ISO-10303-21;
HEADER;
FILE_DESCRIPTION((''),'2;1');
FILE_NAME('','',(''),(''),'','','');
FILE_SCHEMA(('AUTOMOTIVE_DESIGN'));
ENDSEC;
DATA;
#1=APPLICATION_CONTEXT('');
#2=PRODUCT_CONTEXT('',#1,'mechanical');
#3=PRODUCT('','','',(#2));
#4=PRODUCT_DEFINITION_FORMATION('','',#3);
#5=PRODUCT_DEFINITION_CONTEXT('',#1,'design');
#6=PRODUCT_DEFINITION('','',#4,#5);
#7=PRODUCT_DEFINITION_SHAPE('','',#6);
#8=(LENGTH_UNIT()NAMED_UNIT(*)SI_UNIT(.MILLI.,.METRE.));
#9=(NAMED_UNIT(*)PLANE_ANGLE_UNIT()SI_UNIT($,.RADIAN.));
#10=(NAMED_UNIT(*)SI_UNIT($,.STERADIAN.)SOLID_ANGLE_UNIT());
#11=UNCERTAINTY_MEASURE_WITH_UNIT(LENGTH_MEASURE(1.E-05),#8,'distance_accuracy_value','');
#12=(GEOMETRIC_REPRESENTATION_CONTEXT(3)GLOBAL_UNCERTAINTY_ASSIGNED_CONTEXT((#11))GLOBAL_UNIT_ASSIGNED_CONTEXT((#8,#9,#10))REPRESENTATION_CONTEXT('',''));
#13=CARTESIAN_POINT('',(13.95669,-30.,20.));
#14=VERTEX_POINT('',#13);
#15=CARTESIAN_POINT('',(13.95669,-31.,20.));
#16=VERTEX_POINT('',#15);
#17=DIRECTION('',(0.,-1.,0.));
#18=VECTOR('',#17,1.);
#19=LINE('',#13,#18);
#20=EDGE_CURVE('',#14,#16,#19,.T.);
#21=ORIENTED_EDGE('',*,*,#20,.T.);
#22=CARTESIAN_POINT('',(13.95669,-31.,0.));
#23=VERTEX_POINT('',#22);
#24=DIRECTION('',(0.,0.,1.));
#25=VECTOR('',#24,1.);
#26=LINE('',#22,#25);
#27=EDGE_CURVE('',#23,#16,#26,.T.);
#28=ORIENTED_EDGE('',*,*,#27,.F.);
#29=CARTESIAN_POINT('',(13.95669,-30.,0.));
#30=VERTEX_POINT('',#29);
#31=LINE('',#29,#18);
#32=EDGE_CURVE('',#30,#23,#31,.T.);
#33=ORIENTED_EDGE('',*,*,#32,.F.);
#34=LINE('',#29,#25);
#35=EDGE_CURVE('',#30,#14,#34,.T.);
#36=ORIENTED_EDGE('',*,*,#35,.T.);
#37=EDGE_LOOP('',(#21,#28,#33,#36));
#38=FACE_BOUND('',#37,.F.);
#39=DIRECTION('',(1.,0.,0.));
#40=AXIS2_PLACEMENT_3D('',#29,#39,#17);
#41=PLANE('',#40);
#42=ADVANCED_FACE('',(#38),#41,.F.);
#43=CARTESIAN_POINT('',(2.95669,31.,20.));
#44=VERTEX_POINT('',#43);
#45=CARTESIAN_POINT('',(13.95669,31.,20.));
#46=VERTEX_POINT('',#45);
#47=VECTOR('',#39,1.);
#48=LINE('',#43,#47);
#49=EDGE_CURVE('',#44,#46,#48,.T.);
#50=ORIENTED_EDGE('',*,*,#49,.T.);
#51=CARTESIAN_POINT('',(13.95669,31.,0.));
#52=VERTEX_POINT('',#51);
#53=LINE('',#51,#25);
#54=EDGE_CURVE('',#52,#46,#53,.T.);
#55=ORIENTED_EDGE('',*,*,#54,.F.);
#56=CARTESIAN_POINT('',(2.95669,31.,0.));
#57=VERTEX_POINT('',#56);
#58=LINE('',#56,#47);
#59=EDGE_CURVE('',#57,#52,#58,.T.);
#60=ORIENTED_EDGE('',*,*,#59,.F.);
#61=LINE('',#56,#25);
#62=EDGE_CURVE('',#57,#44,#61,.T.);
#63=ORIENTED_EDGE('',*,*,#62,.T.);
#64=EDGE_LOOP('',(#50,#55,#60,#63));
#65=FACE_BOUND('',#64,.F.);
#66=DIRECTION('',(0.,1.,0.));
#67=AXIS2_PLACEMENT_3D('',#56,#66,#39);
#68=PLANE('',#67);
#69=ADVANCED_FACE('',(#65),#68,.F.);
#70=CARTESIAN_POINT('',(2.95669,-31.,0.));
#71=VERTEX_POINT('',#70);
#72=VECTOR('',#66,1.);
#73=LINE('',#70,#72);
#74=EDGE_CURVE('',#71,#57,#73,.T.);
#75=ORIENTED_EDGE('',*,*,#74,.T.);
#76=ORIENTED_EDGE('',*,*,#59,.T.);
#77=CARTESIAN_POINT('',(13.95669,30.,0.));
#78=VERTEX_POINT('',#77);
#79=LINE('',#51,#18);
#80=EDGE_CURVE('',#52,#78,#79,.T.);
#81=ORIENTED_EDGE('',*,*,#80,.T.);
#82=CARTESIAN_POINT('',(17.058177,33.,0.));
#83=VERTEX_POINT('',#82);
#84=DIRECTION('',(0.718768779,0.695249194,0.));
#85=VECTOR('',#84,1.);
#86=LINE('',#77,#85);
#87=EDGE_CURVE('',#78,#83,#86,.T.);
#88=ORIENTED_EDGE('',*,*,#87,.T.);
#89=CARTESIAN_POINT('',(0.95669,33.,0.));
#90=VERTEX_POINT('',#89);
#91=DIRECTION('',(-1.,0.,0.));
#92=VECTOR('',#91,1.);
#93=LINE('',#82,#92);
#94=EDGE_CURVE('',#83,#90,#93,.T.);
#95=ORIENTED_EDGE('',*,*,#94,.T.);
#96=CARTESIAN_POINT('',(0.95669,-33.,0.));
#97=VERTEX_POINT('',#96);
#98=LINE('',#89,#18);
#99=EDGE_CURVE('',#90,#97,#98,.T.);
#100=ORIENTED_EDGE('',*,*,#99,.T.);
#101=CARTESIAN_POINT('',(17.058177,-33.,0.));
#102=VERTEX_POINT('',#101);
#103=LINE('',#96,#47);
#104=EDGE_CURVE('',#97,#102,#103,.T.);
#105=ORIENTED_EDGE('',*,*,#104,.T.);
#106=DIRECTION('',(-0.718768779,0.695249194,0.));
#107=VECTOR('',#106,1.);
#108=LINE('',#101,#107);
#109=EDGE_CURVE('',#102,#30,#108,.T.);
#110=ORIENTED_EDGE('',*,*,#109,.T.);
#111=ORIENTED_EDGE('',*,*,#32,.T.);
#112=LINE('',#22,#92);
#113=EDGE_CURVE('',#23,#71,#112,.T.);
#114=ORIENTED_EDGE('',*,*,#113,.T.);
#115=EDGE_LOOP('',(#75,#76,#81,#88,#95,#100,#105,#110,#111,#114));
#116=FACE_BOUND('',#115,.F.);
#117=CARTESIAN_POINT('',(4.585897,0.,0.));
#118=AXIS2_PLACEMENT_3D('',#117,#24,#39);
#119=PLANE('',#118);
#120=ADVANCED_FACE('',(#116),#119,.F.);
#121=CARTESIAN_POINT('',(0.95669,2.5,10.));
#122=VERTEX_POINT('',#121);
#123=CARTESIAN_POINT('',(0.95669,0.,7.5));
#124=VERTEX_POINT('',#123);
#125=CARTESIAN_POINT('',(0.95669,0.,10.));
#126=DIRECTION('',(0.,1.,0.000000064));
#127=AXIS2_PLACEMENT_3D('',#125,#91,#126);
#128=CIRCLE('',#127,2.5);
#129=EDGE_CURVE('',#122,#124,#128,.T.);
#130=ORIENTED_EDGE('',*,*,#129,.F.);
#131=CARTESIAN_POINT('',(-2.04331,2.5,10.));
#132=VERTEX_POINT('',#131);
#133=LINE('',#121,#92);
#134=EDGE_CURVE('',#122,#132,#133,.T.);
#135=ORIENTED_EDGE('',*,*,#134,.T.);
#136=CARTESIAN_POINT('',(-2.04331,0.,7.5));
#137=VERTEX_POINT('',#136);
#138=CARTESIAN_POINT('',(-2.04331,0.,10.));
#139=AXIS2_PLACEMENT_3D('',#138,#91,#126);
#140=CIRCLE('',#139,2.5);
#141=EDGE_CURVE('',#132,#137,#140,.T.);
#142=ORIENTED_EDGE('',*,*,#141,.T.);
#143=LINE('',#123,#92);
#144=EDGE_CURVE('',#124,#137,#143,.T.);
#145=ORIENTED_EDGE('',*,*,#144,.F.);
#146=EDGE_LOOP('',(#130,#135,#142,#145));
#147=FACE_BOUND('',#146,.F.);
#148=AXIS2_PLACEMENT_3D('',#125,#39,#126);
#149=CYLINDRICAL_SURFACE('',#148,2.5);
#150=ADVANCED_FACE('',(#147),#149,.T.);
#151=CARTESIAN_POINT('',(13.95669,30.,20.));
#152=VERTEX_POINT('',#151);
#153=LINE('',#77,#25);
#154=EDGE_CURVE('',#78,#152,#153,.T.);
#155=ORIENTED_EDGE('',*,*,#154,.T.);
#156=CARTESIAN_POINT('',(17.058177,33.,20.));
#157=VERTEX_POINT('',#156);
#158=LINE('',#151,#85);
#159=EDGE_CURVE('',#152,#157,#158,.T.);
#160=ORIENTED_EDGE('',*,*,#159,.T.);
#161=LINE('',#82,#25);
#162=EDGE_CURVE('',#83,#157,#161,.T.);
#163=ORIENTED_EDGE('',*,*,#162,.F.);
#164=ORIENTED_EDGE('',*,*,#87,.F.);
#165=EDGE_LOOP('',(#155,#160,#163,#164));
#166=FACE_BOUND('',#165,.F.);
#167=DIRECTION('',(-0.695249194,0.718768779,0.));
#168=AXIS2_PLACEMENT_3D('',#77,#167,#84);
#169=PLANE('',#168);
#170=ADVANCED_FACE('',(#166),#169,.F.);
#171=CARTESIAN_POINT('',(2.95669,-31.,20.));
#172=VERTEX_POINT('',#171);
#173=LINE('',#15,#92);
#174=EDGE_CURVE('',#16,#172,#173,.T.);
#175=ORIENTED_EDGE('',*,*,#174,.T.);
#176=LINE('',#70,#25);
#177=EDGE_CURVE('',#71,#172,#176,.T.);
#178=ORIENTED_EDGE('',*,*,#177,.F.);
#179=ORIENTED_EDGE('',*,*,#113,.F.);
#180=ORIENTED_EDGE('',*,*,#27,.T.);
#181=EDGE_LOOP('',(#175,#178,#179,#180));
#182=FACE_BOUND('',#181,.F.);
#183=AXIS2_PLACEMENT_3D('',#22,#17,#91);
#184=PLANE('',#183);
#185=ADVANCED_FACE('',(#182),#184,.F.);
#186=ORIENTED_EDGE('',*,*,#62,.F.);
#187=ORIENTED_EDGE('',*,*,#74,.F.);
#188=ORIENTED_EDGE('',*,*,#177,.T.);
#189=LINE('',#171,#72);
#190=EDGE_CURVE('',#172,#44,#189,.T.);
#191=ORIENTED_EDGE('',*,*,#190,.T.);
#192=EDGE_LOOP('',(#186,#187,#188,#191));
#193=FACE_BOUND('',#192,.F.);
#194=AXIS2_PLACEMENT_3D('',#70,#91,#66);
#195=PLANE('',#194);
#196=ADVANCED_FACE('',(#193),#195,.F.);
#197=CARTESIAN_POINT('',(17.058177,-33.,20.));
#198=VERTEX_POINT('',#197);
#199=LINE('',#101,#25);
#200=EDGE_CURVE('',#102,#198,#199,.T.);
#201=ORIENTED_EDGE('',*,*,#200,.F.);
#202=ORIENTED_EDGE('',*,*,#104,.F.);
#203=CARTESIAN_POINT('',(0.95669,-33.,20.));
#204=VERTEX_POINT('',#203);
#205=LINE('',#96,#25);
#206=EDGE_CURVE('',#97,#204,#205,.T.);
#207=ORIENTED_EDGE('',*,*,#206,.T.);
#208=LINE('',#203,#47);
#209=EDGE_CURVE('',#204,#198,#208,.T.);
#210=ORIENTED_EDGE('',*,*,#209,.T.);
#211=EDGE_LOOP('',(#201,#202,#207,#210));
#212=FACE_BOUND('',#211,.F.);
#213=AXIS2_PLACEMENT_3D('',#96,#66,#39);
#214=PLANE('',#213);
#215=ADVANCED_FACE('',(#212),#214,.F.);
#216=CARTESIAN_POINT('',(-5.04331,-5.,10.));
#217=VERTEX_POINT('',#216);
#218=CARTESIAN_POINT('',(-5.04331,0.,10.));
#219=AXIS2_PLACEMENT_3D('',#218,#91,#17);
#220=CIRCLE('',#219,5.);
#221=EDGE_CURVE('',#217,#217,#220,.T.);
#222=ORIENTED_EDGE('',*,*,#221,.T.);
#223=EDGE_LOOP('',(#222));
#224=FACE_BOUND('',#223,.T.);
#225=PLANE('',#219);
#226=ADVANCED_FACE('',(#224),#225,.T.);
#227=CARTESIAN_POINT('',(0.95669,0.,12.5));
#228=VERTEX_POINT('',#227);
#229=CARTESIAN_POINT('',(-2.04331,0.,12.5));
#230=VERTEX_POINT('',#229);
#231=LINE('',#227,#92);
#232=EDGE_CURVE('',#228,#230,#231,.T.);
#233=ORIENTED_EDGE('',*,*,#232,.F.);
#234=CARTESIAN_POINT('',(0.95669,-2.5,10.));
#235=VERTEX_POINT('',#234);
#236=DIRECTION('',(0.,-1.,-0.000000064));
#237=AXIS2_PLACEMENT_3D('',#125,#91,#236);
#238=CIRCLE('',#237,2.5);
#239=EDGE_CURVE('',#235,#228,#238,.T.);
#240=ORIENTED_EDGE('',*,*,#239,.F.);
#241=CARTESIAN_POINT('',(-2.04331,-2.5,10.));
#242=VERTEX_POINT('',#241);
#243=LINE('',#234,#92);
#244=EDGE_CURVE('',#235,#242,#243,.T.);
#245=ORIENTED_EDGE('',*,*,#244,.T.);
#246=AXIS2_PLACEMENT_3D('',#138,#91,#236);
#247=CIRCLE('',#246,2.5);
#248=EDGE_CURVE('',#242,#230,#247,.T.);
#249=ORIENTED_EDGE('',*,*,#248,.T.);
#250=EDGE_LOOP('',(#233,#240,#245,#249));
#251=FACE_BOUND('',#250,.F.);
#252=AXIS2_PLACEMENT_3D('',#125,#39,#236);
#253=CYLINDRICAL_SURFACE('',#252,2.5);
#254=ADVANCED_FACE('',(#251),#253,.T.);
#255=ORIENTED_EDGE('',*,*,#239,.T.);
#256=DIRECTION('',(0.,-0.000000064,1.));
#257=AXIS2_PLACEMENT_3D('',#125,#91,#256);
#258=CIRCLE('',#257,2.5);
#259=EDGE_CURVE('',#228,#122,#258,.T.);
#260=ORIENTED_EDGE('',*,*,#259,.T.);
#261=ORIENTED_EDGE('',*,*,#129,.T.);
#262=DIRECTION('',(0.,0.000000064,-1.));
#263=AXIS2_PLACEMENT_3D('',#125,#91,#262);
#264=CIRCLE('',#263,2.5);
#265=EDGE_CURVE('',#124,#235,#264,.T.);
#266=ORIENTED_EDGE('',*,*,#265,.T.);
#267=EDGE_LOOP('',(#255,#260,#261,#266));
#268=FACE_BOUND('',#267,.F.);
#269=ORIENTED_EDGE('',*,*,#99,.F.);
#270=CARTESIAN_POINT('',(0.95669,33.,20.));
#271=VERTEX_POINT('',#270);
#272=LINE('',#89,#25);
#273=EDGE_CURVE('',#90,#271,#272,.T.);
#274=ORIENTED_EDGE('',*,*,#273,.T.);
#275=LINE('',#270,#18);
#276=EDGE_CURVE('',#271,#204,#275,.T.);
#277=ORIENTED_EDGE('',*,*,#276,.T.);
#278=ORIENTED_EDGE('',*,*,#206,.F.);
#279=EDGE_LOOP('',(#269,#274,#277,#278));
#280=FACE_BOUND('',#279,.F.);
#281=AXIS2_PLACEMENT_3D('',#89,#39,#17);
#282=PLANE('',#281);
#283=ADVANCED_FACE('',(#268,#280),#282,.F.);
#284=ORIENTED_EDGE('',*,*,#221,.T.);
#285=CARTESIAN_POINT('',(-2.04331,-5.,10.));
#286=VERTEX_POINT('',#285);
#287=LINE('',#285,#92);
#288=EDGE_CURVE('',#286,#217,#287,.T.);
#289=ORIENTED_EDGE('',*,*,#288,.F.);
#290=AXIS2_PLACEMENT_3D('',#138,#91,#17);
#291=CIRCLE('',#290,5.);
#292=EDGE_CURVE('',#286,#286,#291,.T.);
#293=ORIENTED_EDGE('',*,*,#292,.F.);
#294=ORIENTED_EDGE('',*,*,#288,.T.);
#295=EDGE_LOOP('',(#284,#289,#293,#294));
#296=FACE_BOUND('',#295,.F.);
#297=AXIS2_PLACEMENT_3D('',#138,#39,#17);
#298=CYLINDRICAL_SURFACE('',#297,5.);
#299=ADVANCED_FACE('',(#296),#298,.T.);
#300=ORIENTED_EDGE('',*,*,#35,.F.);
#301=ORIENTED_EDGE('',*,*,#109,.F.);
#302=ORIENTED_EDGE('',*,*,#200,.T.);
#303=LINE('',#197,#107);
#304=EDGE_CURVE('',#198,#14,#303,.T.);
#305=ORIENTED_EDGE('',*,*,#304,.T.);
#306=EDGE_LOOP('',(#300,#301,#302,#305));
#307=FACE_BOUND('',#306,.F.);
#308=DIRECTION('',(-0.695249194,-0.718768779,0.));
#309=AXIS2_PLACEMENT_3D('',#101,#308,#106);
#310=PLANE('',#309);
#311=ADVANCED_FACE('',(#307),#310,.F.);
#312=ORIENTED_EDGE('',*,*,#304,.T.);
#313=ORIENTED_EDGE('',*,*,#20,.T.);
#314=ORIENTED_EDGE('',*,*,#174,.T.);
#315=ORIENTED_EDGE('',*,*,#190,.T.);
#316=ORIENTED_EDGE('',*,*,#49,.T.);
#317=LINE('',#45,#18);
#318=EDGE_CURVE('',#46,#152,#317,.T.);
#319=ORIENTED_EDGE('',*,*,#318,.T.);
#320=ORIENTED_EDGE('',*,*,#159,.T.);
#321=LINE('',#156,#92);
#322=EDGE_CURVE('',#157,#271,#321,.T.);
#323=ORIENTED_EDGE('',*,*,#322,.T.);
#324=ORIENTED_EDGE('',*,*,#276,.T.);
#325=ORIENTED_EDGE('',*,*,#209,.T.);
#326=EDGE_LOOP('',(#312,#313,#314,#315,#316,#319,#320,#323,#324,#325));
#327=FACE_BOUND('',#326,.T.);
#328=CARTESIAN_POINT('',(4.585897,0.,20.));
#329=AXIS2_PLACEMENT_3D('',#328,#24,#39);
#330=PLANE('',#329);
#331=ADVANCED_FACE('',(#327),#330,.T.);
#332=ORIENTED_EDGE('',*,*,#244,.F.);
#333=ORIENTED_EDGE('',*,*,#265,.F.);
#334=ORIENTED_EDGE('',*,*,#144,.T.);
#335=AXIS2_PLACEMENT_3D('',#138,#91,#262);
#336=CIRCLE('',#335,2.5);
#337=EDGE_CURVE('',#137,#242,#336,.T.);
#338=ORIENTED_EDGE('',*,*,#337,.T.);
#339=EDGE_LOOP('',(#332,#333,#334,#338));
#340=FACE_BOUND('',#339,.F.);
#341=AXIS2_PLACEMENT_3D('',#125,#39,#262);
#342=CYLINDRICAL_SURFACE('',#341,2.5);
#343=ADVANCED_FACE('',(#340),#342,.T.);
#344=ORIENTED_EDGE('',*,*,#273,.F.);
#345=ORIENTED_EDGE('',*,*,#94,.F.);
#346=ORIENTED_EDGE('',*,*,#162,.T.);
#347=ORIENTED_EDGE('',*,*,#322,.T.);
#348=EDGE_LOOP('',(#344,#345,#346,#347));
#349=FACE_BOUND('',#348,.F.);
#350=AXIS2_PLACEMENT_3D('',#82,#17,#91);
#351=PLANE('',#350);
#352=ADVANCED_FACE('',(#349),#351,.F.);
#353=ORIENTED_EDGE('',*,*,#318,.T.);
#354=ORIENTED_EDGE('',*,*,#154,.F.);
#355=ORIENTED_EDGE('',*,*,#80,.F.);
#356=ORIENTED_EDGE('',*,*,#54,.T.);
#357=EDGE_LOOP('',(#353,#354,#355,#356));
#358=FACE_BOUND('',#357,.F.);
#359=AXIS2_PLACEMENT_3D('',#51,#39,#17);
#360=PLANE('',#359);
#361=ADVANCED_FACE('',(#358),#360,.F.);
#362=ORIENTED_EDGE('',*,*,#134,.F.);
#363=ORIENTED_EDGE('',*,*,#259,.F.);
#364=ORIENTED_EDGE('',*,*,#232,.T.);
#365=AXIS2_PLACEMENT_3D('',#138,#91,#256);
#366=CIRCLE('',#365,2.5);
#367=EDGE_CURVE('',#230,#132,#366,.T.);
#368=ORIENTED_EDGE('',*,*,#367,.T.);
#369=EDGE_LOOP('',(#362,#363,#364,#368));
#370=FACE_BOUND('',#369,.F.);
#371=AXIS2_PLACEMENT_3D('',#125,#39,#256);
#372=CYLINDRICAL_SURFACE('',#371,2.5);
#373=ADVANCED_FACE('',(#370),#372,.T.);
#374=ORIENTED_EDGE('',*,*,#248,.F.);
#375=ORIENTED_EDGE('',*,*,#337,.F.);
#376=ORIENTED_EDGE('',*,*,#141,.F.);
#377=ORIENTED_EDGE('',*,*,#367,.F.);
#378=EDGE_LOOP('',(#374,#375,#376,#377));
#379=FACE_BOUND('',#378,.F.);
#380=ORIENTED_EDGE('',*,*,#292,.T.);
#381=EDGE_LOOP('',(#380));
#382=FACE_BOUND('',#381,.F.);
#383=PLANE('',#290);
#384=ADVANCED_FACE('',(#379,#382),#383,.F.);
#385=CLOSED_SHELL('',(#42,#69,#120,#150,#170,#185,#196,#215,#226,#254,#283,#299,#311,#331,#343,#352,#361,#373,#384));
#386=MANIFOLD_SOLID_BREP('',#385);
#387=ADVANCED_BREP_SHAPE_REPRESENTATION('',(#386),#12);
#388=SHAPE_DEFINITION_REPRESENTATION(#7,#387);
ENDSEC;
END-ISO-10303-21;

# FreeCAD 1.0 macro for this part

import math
import FreeCAD as App
import Part
import Sketcher
from FreeCAD import Vector
Q = App.Units.Quantity

doc = App.newDocument("Part")
body = doc.addObject("PartDesign::Body", "Body")

# Sketch on XY plane
sketch1 = doc.addObject("Sketcher::SketchObject", "Sketch")
body.addObject(sketch1)
sketch1.AttachmentSupport = (doc.XY_Plane, [""])
sketch1.MapMode = "FlatFace"
sketch1.addGeometry([
    Part.LineSegment(Vector(1, 33, 0), Vector(1, -33, 0)),  # 0
    Part.LineSegment(Vector(1, -33, 0), Vector(17.1, -33, 0)),  # 1
    Part.LineSegment(Vector(17.1, -33, 0), Vector(14, -30, 0)),  # 2
    Part.LineSegment(Vector(14, -30, 0), Vector(14, -31, 0)),  # 3
    Part.LineSegment(Vector(14, -31, 0), Vector(3, -31, 0)),  # 4
    Part.LineSegment(Vector(3, -31, 0), Vector(3, 31, 0)),  # 5
    Part.LineSegment(Vector(3, 31, 0), Vector(14, 31, 0)),  # 6
    Part.LineSegment(Vector(14, 31, 0), Vector(14, 30, 0)),  # 7
    Part.LineSegment(Vector(14, 30, 0), Vector(17.1, 33, 0)),  # 8
    Part.LineSegment(Vector(17.1, 33, 0), Vector(1, 33, 0)),  # 9
], False)
sketch1.addConstraint([
    Sketcher.Constraint("Coincident", 0, 2, 1, 1),
    Sketcher.Constraint("Coincident", 1, 2, 2, 1),
    Sketcher.Constraint("Coincident", 2, 2, 3, 1),
    Sketcher.Constraint("Coincident", 3, 2, 4, 1),
    Sketcher.Constraint("Coincident", 4, 2, 5, 1),
    Sketcher.Constraint("Coincident", 5, 2, 6, 1),
    Sketcher.Constraint("Coincident", 6, 2, 7, 1),
    Sketcher.Constraint("Coincident", 7, 2, 8, 1),
    Sketcher.Constraint("Coincident", 8, 2, 9, 1),
    Sketcher.Constraint("Coincident", 9, 2, 0, 1),
    Sketcher.Constraint("Vertical", 0),
    Sketcher.Constraint("Horizontal", 1),
    Sketcher.Constraint("Vertical", 3),
    Sketcher.Constraint("Horizontal", 4),
    Sketcher.Constraint("Vertical", 5),
    Sketcher.Constraint("Horizontal", 6),
    Sketcher.Constraint("Vertical", 7),
    Sketcher.Constraint("Horizontal", 9),
    Sketcher.Constraint("Symmetric", 3, 2, 6, 2, -1),
    Sketcher.Constraint("Symmetric", 1, 2, 8, 2, -1),
    Sketcher.Constraint("Equal", 3, 7),
    Sketcher.Constraint("DistanceX", 4, 2, 4, 1, Q("11 mm")),
    Sketcher.Constraint("DistanceY", 0, 2, 0, 1, Q("66 mm")),
    Sketcher.Constraint("DistanceY", 3, 2, 3, 1, Q("1 mm")),
    Sketcher.Constraint("DistanceY", 5, 1, 5, 2, Q("62 mm")),
    Sketcher.Constraint("DistanceX", 0, 2, 2, 2, Q("13 mm")),
    Sketcher.Constraint("Distance", 2, Q("4.315 mm")),
    Sketcher.Constraint("DistanceX", -1, 1, 0, 2, Q("0.95669 mm")),
])
pad1 = doc.addObject("PartDesign::Pad", "Pad")
body.addObject(pad1)
pad1.Profile = sketch1
pad1.Length = 20

# Sketch on YZ plane
sketch2 = doc.addObject("Sketcher::SketchObject", "Sketch001")
body.addObject(sketch2)
sketch2.AttachmentSupport = (doc.YZ_Plane, [""])
sketch2.MapMode = "FlatFace"
sketch2.AttachmentOffset = App.Placement(Vector(0, 0, 0.95669), App.Rotation())
sketch2.addGeometry([
    Part.ArcOfCircle(Part.Circle(Vector(0, 10, 0), Vector(0, 0, 1), 2.5), math.radians(90), math.radians(180)),
    Part.ArcOfCircle(Part.Circle(Vector(0, 10, 0), Vector(0, 0, 1), 2.5), math.radians(0), math.radians(90)),
    Part.ArcOfCircle(Part.Circle(Vector(0, 10, 0), Vector(0, 0, 1), 2.5), math.radians(-90), math.radians(0)),
    Part.ArcOfCircle(Part.Circle(Vector(0, 10, 0), Vector(0, 0, 1), 2.5), math.radians(180), math.radians(270)),
], False)
sketch2.addConstraint([
    Sketcher.Constraint("Tangent", 0, 1, 1, 2),
    Sketcher.Constraint("Tangent", 1, 1, 2, 2),
    Sketcher.Constraint("Tangent", 2, 1, 3, 2),
    Sketcher.Constraint("Tangent", 3, 1, 0, 2),
    Sketcher.Constraint("Equal", 0, 1),
    Sketcher.Constraint("Symmetric", 1, 1, 3, 1, -2),
    Sketcher.Constraint("PointOnObject", 0, 1, -2),
    Sketcher.Constraint("PointOnObject", 2, 1, -2),
    Sketcher.Constraint("Horizontal", 3, 3, 1, 1),
    Sketcher.Constraint("Radius", 0, Q("2.5 mm")),
    Sketcher.Constraint("DistanceY", -1, 1, 0, 3, Q("10 mm")),
])
pad2 = doc.addObject("PartDesign::Pad", "Pad001")
body.addObject(pad2)
pad2.Profile = sketch2
pad2.Length = 3
pad2.Reversed = True

# Sketch on YZ plane
sketch3 = doc.addObject("Sketcher::SketchObject", "Sketch002")
body.addObject(sketch3)
sketch3.AttachmentSupport = (doc.YZ_Plane, [""])
sketch3.MapMode = "FlatFace"
sketch3.AttachmentOffset = App.Placement(Vector(0, 0, -2.04331), App.Rotation())
sketch3.addGeometry(Part.Circle(Vector(0, 10, 0), Vector(0, 0, 1), 5), False)
sketch3.addConstraint([
    Sketcher.Constraint("PointOnObject", 0, 3, -2),
    Sketcher.Constraint("Diameter", 0, Q("10 mm")),
    Sketcher.Constraint("DistanceY", -1, 1, 0, 3, Q("10 mm")),
])
pad3 = doc.addObject("PartDesign::Pad", "Pad002")
body.addObject(pad3)
pad3.Profile = sketch3
pad3.Length = 3
pad3.Reversed = True

doc.recompute()
